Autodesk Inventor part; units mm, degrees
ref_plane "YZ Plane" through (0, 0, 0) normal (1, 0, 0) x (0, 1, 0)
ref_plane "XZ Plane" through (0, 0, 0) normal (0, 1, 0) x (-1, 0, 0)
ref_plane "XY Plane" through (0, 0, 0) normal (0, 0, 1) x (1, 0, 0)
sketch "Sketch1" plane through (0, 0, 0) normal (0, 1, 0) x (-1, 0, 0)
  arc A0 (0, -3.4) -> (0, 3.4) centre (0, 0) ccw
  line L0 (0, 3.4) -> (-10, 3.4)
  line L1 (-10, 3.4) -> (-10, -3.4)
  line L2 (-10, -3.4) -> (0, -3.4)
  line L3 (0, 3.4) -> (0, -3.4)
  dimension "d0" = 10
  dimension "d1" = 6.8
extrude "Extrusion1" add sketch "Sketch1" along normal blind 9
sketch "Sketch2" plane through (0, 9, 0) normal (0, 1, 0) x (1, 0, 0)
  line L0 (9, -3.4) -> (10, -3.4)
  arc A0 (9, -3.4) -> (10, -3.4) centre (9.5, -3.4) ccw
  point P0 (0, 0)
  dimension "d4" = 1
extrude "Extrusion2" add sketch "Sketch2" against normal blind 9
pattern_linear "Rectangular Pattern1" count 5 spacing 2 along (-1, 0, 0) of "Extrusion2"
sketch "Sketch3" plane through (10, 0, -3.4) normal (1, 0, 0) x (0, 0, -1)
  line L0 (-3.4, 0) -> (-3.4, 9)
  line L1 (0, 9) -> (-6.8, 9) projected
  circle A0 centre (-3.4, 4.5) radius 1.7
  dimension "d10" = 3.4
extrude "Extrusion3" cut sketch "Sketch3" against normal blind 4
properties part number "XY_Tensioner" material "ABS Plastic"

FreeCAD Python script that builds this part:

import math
import FreeCAD as App
import Part
import Sketcher
from FreeCAD import Vector

doc = App.newDocument("Part")
body = doc.addObject("PartDesign::Body", "Body")

sketch1 = doc.addObject("Sketcher::SketchObject", "Sketch")
body.addObject(sketch1)
sketch1.AttachmentSupport = (doc.XZ_Plane, [""])
sketch1.MapMode = "FlatFace"
sketch1.addGeometry([
    Part.ArcOfCircle(Part.Circle(Vector(0, 0, 0), Vector(0, 0, 1), 3.4), math.radians(90), math.radians(270)),
    Part.LineSegment(Vector(0, 3.4, 0), Vector(10, 3.4, 0)),
    Part.LineSegment(Vector(10, 3.4, 0), Vector(10, -3.4, 0)),
    Part.LineSegment(Vector(10, -3.4, 0), Vector(0, -3.4, 0)),
], False)
sketch1.addConstraint([
    Sketcher.Constraint("Tangent", 0, 1, 1, 1),
    Sketcher.Constraint("Coincident", 1, 2, 2, 1),
    Sketcher.Constraint("Coincident", 2, 2, 3, 1),
    Sketcher.Constraint("Tangent", 3, 2, 0, 2),
    Sketcher.Constraint("Horizontal", 1),
    Sketcher.Constraint("Vertical", 2),
    Sketcher.Constraint("Horizontal", 3),
    Sketcher.Constraint("Coincident", 0, 3, -1, 1),
    Sketcher.Constraint("Radius", 0, 3.4),
    Sketcher.Constraint("DistanceX", 1, 1, 1, 2, 10.0),
])
pad1 = doc.addObject("PartDesign::Pad", "Pad")
body.addObject(pad1)
pad1.Profile = sketch1
pad1.Length = 9
pad1.Reversed = True

sketch2 = doc.addObject("Sketcher::SketchObject", "Sketch001")
body.addObject(sketch2)
sketch2.AttachmentSupport = (doc.XZ_Plane, [""])
sketch2.MapMode = "FlatFace"
sketch2.AttachmentOffset = App.Placement(Vector(0, 0, -9), App.Rotation())
sketch2.addGeometry([
    Part.LineSegment(Vector(10, 3.4, 0), Vector(9, 3.4, 0)),
    Part.ArcOfCircle(Part.Circle(Vector(9.5, 3.4, 0), Vector(0, 0, 1), 0.5), math.radians(0), math.radians(180)),
], False)
sketch2.addConstraint([
    Sketcher.Constraint("Coincident", 0, 1, 1, 1),
    Sketcher.Constraint("Coincident", 1, 2, 0, 2),
    Sketcher.Constraint("Horizontal", 0),
    Sketcher.Constraint("Horizontal", 1, 3, 0, 1),
    Sketcher.Constraint("Radius", 1, 0.5),
    Sketcher.Constraint("DistanceX", -1, 1, 0, 1, 10.0),
    Sketcher.Constraint("DistanceY", -1, 1, 1, 3, 3.4),
])
pad2 = doc.addObject("PartDesign::Pad", "Pad001")
body.addObject(pad2)
pad2.Profile = sketch2
pad2.Length = 9
doc.recompute()

linearpattern = doc.addObject("PartDesign::LinearPattern", "LinearPattern")
body.addObject(linearpattern)
linearpattern.Originals = [pad2]
linearpattern.Direction = (doc.X_Axis, [""])
linearpattern.Mode = "offset"
linearpattern.Offset = 2
linearpattern.Occurrences = 5
linearpattern.Reversed = True
body.Tip = linearpattern

sketch3 = doc.addObject("Sketcher::SketchObject", "Sketch002")
body.addObject(sketch3)
sketch3.AttachmentSupport = (doc.YZ_Plane, [""])
sketch3.MapMode = "FlatFace"
sketch3.AttachmentOffset = App.Placement(Vector(0, 0, 10), App.Rotation())
sketch3.addGeometry(Part.Circle(Vector(4.5, 0, 0), Vector(0, 0, 1), 1.7), False)
sketch3.addConstraint([
    Sketcher.Constraint("PointOnObject", 0, 3, -1),
    Sketcher.Constraint("Diameter", 0, 3.4),
    Sketcher.Constraint("DistanceX", -1, 1, 0, 3, 4.5),
])
pocket1 = doc.addObject("PartDesign::Pocket", "Pocket")
body.addObject(pocket1)
pocket1.Profile = sketch3
pocket1.Length = 4

doc.recompute()
